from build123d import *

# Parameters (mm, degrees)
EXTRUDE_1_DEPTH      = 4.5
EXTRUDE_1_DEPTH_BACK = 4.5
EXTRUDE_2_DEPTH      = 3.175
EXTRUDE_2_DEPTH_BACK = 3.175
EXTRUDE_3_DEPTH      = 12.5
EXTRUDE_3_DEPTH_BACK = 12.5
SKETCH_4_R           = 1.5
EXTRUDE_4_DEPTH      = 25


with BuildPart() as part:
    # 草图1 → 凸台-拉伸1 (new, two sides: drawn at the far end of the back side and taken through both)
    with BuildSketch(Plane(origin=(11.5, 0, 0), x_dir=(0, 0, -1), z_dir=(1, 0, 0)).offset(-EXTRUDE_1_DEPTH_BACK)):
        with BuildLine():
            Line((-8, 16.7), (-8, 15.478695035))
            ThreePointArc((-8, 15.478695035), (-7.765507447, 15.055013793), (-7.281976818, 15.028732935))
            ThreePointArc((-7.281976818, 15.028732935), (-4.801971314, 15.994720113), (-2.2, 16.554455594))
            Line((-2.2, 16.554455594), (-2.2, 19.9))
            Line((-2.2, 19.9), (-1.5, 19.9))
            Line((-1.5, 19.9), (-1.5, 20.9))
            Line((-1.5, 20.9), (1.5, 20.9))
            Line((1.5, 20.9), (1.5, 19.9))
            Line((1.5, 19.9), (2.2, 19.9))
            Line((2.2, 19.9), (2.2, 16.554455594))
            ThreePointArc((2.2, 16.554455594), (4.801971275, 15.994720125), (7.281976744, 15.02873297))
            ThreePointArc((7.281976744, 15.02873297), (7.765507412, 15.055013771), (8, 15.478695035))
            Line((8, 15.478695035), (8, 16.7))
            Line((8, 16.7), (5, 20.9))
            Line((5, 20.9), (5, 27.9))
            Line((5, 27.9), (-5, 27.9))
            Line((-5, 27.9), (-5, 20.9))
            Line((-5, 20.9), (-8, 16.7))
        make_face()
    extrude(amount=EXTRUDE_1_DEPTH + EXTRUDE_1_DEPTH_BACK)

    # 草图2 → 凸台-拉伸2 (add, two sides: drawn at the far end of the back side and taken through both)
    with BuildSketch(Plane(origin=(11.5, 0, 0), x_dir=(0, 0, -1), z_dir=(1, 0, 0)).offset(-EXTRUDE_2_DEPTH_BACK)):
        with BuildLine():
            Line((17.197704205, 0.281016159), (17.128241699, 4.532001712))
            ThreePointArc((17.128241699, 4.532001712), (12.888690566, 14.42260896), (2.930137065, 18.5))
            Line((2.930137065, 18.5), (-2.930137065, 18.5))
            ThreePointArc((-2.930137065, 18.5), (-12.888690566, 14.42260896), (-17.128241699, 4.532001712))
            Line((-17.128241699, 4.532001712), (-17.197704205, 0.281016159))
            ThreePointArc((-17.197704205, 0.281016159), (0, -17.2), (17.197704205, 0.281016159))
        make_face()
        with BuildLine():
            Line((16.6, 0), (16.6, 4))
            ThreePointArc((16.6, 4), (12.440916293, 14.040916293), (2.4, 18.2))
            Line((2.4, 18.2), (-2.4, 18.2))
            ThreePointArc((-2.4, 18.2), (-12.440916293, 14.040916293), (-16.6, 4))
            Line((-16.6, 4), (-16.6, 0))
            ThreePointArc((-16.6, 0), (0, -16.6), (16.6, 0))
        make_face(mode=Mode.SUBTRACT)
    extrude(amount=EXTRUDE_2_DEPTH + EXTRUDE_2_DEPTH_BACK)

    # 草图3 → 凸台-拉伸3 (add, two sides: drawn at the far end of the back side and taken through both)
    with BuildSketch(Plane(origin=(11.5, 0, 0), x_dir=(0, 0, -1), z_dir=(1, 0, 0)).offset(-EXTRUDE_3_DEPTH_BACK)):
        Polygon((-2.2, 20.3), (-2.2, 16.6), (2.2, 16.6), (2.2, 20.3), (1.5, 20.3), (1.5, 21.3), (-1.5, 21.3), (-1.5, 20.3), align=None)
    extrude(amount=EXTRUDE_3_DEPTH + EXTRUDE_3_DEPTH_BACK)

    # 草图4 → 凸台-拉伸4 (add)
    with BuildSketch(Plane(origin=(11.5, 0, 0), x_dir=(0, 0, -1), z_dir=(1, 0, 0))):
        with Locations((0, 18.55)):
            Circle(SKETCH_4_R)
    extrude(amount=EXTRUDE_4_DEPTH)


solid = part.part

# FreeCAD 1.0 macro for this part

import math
import FreeCAD as App
import Part
import Sketcher
Q = App.Units.Quantity


def add_polygon(sketch, points):
    """Adds a closed chain of lines whose ends are joined by coincident constraints."""
    first, n = sketch.GeometryCount, len(points)
    for a, b in zip(points, points[1:] + points[:1]):
        sketch.addGeometry(Part.LineSegment(App.Vector(*a, 0), App.Vector(*b, 0)), False)
    for i in range(n):
        sketch.addConstraint(Sketcher.Constraint("Coincident", first + i, 2, first + (i + 1) % n, 1))

doc = App.newDocument("Part")
body = doc.addObject("PartDesign::Body", "Body")

# Sketch on YZ plane
sketch1 = doc.addObject("Sketcher::SketchObject", "Sketch")
body.addObject(sketch1)
sketch1.AttachmentSupport = (doc.YZ_Plane, [""])
sketch1.MapMode = "FlatFace"
sketch1.AttachmentOffset = App.Placement(App.Vector(0, 0, 11.5), App.Rotation())
sketch1.addGeometry([
    Part.LineSegment(App.Vector(16.7, 8, 0), App.Vector(15.5, 8, 0)),  # 0
    Part.ArcOfCircle(Part.Circle(App.Vector(15.5, 7.5, 0), App.Vector(0, 0, 1), 0.5), math.radians(90), math.radians(206)),  # 1
    Part.ArcOfCircle(Part.Circle(App.Vector(0, 0, 0), App.Vector(0, 0, 1), 16.7), math.radians(7.57), math.radians(25.85)),  # 2
    Part.LineSegment(App.Vector(16.6, 2.2, 0), App.Vector(19.9, 2.2, 0)),  # 3
    Part.LineSegment(App.Vector(19.9, 2.2, 0), App.Vector(19.9, 1.5, 0)),  # 4
    Part.LineSegment(App.Vector(19.9, 1.5, 0), App.Vector(20.9, 1.5, 0)),  # 5
    Part.LineSegment(App.Vector(20.9, 1.5, 0), App.Vector(20.9, -1.5, 0)),  # 6
    Part.LineSegment(App.Vector(20.9, -1.5, 0), App.Vector(19.9, -1.5, 0)),  # 7
    Part.LineSegment(App.Vector(19.9, -1.5, 0), App.Vector(19.9, -2.2, 0)),  # 8
    Part.LineSegment(App.Vector(19.9, -2.2, 0), App.Vector(16.6, -2.2, 0)),  # 9
    Part.ArcOfCircle(Part.Circle(App.Vector(0, 0, 0), App.Vector(0, 0, 1), 16.7), math.radians(-25.85), math.radians(-7.57)),  # 10
    Part.ArcOfCircle(Part.Circle(App.Vector(15.5, -7.5, 0), App.Vector(0, 0, 1), 0.5), math.radians(154), math.radians(270)),  # 11
    Part.LineSegment(App.Vector(15.5, -8, 0), App.Vector(16.7, -8, 0)),  # 12
    Part.LineSegment(App.Vector(16.7, -8, 0), App.Vector(20.9, -5, 0)),  # 13
    Part.LineSegment(App.Vector(20.9, -5, 0), App.Vector(27.9, -5, 0)),  # 14
    Part.LineSegment(App.Vector(27.9, -5, 0), App.Vector(27.9, 5, 0)),  # 15
    Part.LineSegment(App.Vector(27.9, 5, 0), App.Vector(20.9, 5, 0)),  # 16
    Part.LineSegment(App.Vector(20.9, 5, 0), App.Vector(16.7, 8, 0)),  # 17
], False)
sketch1.addConstraint([
    Sketcher.Constraint("Tangent", 0, 2, 1, 1),
    Sketcher.Constraint("Tangent", 1, 2, 2, 2),
    Sketcher.Constraint("Coincident", 2, 1, 3, 1),
    Sketcher.Constraint("Coincident", 3, 2, 4, 1),
    Sketcher.Constraint("Coincident", 4, 2, 5, 1),
    Sketcher.Constraint("Coincident", 5, 2, 6, 1),
    Sketcher.Constraint("Coincident", 6, 2, 7, 1),
    Sketcher.Constraint("Coincident", 7, 2, 8, 1),
    Sketcher.Constraint("Coincident", 8, 2, 9, 1),
    Sketcher.Constraint("Coincident", 9, 2, 10, 2),
    Sketcher.Constraint("Tangent", 10, 1, 11, 1),
    Sketcher.Constraint("Tangent", 11, 2, 12, 1),
    Sketcher.Constraint("Coincident", 12, 2, 13, 1),
    Sketcher.Constraint("Coincident", 13, 2, 14, 1),
    Sketcher.Constraint("Coincident", 14, 2, 15, 1),
    Sketcher.Constraint("Coincident", 15, 2, 16, 1),
    Sketcher.Constraint("Coincident", 16, 2, 17, 1),
    Sketcher.Constraint("Coincident", 17, 2, 0, 1),
    Sketcher.Constraint("Horizontal", 0),
    Sketcher.Constraint("Horizontal", 3),
    Sketcher.Constraint("Vertical", 4),
    Sketcher.Constraint("Horizontal", 5),
    Sketcher.Constraint("Vertical", 6),
    Sketcher.Constraint("Horizontal", 7),
    Sketcher.Constraint("Vertical", 8),
    Sketcher.Constraint("Horizontal", 9),
    Sketcher.Constraint("Horizontal", 12),
    Sketcher.Constraint("Horizontal", 14),
    Sketcher.Constraint("Vertical", 15),
    Sketcher.Constraint("Horizontal", 16),
    Sketcher.Constraint("Coincident", 2, 3, -1, 1),
    Sketcher.Constraint("Coincident", 10, 3, -1, 1),
    Sketcher.Constraint("Equal", 2, 10),
    Sketcher.Constraint("Equal", 1, 11),
    Sketcher.Constraint("Symmetric", 4, 2, 7, 2, -1),
    Sketcher.Constraint("Symmetric", 13, 2, 16, 2, -1),
    Sketcher.Constraint("Symmetric", 12, 2, 17, 2, -1),
    Sketcher.Constraint("Vertical", 2, 1, 9, 2),
    Sketcher.Constraint("Vertical", 6, 2, 13, 2),
    Sketcher.Constraint("Radius", 1, Q("0.5 mm")),
    Sketcher.Constraint("Radius", 2, Q("16.7 mm")),
    Sketcher.Constraint("DistanceX", 5, 1, 5, 2, Q("1 mm")),
    Sketcher.Constraint("DistanceX", 14, 1, 14, 2, Q("7 mm")),
    Sketcher.Constraint("DistanceY", 6, 2, 6, 1, Q("3 mm")),
    Sketcher.Constraint("DistanceY", 15, 1, 15, 2, Q("10 mm")),
    Sketcher.Constraint("DistanceY", 4, 2, 4, 1, Q("0.7 mm")),
    Sketcher.Constraint("DistanceY", -1, 1, 0, 2, Q("8 mm")),
    Sketcher.Constraint("DistanceX", -1, 1, 3, 2, Q("19.9 mm")),
    Sketcher.Constraint("DistanceX", -1, 1, 12, 2, Q("16.7 mm")),
])
pad1 = doc.addObject("PartDesign::Pad", "Pad")
body.addObject(pad1)
pad1.Profile = sketch1
pad1.Type = "TwoLengths"
pad1.Length = 4.5
pad1.Length2 = 4.5

# Sketch on YZ plane
sketch2 = doc.addObject("Sketcher::SketchObject", "Sketch001")
body.addObject(sketch2)
sketch2.AttachmentSupport = (doc.YZ_Plane, [""])
sketch2.MapMode = "FlatFace"
sketch2.AttachmentOffset = App.Placement(App.Vector(0, 0, 11.5), App.Rotation())
sketch2.addGeometry([
    Part.LineSegment(App.Vector(0.3, -17.2, 0), App.Vector(4.5, -17.1, 0)),  # 0
    Part.ArcOfCircle(Part.Circle(App.Vector(4.3, -2.9, 0), App.Vector(0, 0, 1), 14.2), math.radians(-89), math.radians(0)),  # 1
    Part.LineSegment(App.Vector(18.5, -2.9, 0), App.Vector(18.5, 2.9, 0)),  # 2
    Part.ArcOfCircle(Part.Circle(App.Vector(4.3, 2.9, 0), App.Vector(0, 0, 1), 14.2), math.radians(0), math.radians(89)),  # 3
    Part.LineSegment(App.Vector(4.5, 17.1, 0), App.Vector(0.3, 17.2, 0)),  # 4
    Part.ArcOfCircle(Part.Circle(App.Vector(0, 0, 0), App.Vector(0, 0, 1), 17.2), math.radians(89), math.radians(271)),  # 5
    Part.LineSegment(App.Vector(4, -16.6, 0), App.Vector(0, -16.6, 0)),  # 6
    Part.ArcOfCircle(Part.Circle(App.Vector(0, 0, 0), App.Vector(0, 0, 1), 16.6), math.radians(90), math.radians(270)),  # 7
    Part.LineSegment(App.Vector(0, 16.6, 0), App.Vector(4, 16.6, 0)),  # 8
    Part.ArcOfCircle(Part.Circle(App.Vector(4, 2.4, 0), App.Vector(0, 0, 1), 14.2), math.radians(0), math.radians(90)),  # 9
    Part.LineSegment(App.Vector(18.2, 2.4, 0), App.Vector(18.2, -2.4, 0)),  # 10
    Part.ArcOfCircle(Part.Circle(App.Vector(4, -2.4, 0), App.Vector(0, 0, 1), 14.2), math.radians(-90), math.radians(0)),  # 11
], False)
sketch2.addConstraint([
    Sketcher.Constraint("Tangent", 0, 2, 1, 1),
    Sketcher.Constraint("Tangent", 1, 2, 2, 1),
    Sketcher.Constraint("Tangent", 2, 2, 3, 1),
    Sketcher.Constraint("Tangent", 3, 2, 4, 1),
    Sketcher.Constraint("Tangent", 4, 2, 5, 1),
    Sketcher.Constraint("Tangent", 5, 2, 0, 1),
    Sketcher.Constraint("Tangent", 6, 2, 7, 2),
    Sketcher.Constraint("Tangent", 7, 1, 8, 1),
    Sketcher.Constraint("Tangent", 8, 2, 9, 2),
    Sketcher.Constraint("Tangent", 9, 1, 10, 1),
    Sketcher.Constraint("Tangent", 10, 2, 11, 2),
    Sketcher.Constraint("Tangent", 11, 1, 6, 1),
    Sketcher.Constraint("Vertical", 2),
    Sketcher.Constraint("Horizontal", 6),
    Sketcher.Constraint("Horizontal", 8),
    Sketcher.Constraint("Vertical", 10),
    Sketcher.Constraint("Coincident", 5, 3, -1, 1),
    Sketcher.Constraint("Coincident", 7, 3, -1, 1),
    Sketcher.Constraint("Equal", 1, 3),
    Sketcher.Constraint("Equal", 3, 9),
    Sketcher.Constraint("Equal", 9, 11),
    Sketcher.Constraint("Vertical", 0, 2, 3, 2),
    Sketcher.Constraint("Radius", 1, Q("14.2 mm")),
    Sketcher.Constraint("Radius", 5, Q("17.2 mm")),
    Sketcher.Constraint("Radius", 7, Q("16.6 mm")),
    Sketcher.Constraint("DistanceX", 6, 2, 6, 1, Q("4 mm")),
    Sketcher.Constraint("DistanceX", -1, 1, 1, 3, Q("4.3 mm")),
    Sketcher.Constraint("DistanceX", -1, 1, 0, 2, Q("4.532002 mm")),
])
pad2 = doc.addObject("PartDesign::Pad", "Pad001")
body.addObject(pad2)
pad2.Profile = sketch2
pad2.Type = "TwoLengths"
pad2.Length = 3.175
pad2.Length2 = 3.175

# Sketch on YZ plane
sketch3 = doc.addObject("Sketcher::SketchObject", "Sketch002")
body.addObject(sketch3)
sketch3.AttachmentSupport = (doc.YZ_Plane, [""])
sketch3.MapMode = "FlatFace"
sketch3.AttachmentOffset = App.Placement(App.Vector(0, 0, 11.5), App.Rotation())
add_polygon(sketch3, [(20.3, 2.2), (16.6, 2.2), (16.6, -2.2), (20.3, -2.2), (20.3, -1.5), (21.3, -1.5), (21.3, 1.5), (20.3, 1.5)])  # lines 0-7
sketch3.addConstraint([
    Sketcher.Constraint("Horizontal", 0),
    Sketcher.Constraint("Vertical", 1),
    Sketcher.Constraint("Horizontal", 2),
    Sketcher.Constraint("Vertical", 3),
    Sketcher.Constraint("Horizontal", 4),
    Sketcher.Constraint("Vertical", 5),
    Sketcher.Constraint("Horizontal", 6),
    Sketcher.Constraint("Vertical", 7),
    Sketcher.Constraint("Symmetric", 3, 2, 6, 2, -1),
    Sketcher.Constraint("Equal", 3, 7),
    Sketcher.Constraint("DistanceX", 4, 1, 4, 2, Q("1 mm")),
    Sketcher.Constraint("DistanceY", 5, 1, 5, 2, Q("3 mm")),
    Sketcher.Constraint("DistanceX", 0, 2, 0, 1, Q("3.7 mm")),
    Sketcher.Constraint("DistanceY", 1, 2, 1, 1, Q("4.4 mm")),
    Sketcher.Constraint("DistanceX", -1, 1, 0, 2, Q("16.6 mm")),
])
pad3 = doc.addObject("PartDesign::Pad", "Pad002")
body.addObject(pad3)
pad3.Profile = sketch3
pad3.Type = "TwoLengths"
pad3.Length = 12.5
pad3.Length2 = 12.5

# Sketch on YZ plane
sketch4 = doc.addObject("Sketcher::SketchObject", "Sketch003")
body.addObject(sketch4)
sketch4.AttachmentSupport = (doc.YZ_Plane, [""])
sketch4.MapMode = "FlatFace"
sketch4.AttachmentOffset = App.Placement(App.Vector(0, 0, 11.5), App.Rotation())
sketch4.addGeometry(Part.Circle(App.Vector(18.6, 0, 0), App.Vector(0, 0, 1), 1.5), False)
sketch4.addConstraint([
    Sketcher.Constraint("PointOnObject", 0, 3, -1),
    Sketcher.Constraint("Diameter", 0, Q("3 mm")),
    Sketcher.Constraint("DistanceX", -1, 1, 0, 3, Q("18.55 mm")),
])
pad4 = doc.addObject("PartDesign::Pad", "Pad003")
body.addObject(pad4)
pad4.Profile = sketch4
pad4.Length = 25

doc.recompute()
